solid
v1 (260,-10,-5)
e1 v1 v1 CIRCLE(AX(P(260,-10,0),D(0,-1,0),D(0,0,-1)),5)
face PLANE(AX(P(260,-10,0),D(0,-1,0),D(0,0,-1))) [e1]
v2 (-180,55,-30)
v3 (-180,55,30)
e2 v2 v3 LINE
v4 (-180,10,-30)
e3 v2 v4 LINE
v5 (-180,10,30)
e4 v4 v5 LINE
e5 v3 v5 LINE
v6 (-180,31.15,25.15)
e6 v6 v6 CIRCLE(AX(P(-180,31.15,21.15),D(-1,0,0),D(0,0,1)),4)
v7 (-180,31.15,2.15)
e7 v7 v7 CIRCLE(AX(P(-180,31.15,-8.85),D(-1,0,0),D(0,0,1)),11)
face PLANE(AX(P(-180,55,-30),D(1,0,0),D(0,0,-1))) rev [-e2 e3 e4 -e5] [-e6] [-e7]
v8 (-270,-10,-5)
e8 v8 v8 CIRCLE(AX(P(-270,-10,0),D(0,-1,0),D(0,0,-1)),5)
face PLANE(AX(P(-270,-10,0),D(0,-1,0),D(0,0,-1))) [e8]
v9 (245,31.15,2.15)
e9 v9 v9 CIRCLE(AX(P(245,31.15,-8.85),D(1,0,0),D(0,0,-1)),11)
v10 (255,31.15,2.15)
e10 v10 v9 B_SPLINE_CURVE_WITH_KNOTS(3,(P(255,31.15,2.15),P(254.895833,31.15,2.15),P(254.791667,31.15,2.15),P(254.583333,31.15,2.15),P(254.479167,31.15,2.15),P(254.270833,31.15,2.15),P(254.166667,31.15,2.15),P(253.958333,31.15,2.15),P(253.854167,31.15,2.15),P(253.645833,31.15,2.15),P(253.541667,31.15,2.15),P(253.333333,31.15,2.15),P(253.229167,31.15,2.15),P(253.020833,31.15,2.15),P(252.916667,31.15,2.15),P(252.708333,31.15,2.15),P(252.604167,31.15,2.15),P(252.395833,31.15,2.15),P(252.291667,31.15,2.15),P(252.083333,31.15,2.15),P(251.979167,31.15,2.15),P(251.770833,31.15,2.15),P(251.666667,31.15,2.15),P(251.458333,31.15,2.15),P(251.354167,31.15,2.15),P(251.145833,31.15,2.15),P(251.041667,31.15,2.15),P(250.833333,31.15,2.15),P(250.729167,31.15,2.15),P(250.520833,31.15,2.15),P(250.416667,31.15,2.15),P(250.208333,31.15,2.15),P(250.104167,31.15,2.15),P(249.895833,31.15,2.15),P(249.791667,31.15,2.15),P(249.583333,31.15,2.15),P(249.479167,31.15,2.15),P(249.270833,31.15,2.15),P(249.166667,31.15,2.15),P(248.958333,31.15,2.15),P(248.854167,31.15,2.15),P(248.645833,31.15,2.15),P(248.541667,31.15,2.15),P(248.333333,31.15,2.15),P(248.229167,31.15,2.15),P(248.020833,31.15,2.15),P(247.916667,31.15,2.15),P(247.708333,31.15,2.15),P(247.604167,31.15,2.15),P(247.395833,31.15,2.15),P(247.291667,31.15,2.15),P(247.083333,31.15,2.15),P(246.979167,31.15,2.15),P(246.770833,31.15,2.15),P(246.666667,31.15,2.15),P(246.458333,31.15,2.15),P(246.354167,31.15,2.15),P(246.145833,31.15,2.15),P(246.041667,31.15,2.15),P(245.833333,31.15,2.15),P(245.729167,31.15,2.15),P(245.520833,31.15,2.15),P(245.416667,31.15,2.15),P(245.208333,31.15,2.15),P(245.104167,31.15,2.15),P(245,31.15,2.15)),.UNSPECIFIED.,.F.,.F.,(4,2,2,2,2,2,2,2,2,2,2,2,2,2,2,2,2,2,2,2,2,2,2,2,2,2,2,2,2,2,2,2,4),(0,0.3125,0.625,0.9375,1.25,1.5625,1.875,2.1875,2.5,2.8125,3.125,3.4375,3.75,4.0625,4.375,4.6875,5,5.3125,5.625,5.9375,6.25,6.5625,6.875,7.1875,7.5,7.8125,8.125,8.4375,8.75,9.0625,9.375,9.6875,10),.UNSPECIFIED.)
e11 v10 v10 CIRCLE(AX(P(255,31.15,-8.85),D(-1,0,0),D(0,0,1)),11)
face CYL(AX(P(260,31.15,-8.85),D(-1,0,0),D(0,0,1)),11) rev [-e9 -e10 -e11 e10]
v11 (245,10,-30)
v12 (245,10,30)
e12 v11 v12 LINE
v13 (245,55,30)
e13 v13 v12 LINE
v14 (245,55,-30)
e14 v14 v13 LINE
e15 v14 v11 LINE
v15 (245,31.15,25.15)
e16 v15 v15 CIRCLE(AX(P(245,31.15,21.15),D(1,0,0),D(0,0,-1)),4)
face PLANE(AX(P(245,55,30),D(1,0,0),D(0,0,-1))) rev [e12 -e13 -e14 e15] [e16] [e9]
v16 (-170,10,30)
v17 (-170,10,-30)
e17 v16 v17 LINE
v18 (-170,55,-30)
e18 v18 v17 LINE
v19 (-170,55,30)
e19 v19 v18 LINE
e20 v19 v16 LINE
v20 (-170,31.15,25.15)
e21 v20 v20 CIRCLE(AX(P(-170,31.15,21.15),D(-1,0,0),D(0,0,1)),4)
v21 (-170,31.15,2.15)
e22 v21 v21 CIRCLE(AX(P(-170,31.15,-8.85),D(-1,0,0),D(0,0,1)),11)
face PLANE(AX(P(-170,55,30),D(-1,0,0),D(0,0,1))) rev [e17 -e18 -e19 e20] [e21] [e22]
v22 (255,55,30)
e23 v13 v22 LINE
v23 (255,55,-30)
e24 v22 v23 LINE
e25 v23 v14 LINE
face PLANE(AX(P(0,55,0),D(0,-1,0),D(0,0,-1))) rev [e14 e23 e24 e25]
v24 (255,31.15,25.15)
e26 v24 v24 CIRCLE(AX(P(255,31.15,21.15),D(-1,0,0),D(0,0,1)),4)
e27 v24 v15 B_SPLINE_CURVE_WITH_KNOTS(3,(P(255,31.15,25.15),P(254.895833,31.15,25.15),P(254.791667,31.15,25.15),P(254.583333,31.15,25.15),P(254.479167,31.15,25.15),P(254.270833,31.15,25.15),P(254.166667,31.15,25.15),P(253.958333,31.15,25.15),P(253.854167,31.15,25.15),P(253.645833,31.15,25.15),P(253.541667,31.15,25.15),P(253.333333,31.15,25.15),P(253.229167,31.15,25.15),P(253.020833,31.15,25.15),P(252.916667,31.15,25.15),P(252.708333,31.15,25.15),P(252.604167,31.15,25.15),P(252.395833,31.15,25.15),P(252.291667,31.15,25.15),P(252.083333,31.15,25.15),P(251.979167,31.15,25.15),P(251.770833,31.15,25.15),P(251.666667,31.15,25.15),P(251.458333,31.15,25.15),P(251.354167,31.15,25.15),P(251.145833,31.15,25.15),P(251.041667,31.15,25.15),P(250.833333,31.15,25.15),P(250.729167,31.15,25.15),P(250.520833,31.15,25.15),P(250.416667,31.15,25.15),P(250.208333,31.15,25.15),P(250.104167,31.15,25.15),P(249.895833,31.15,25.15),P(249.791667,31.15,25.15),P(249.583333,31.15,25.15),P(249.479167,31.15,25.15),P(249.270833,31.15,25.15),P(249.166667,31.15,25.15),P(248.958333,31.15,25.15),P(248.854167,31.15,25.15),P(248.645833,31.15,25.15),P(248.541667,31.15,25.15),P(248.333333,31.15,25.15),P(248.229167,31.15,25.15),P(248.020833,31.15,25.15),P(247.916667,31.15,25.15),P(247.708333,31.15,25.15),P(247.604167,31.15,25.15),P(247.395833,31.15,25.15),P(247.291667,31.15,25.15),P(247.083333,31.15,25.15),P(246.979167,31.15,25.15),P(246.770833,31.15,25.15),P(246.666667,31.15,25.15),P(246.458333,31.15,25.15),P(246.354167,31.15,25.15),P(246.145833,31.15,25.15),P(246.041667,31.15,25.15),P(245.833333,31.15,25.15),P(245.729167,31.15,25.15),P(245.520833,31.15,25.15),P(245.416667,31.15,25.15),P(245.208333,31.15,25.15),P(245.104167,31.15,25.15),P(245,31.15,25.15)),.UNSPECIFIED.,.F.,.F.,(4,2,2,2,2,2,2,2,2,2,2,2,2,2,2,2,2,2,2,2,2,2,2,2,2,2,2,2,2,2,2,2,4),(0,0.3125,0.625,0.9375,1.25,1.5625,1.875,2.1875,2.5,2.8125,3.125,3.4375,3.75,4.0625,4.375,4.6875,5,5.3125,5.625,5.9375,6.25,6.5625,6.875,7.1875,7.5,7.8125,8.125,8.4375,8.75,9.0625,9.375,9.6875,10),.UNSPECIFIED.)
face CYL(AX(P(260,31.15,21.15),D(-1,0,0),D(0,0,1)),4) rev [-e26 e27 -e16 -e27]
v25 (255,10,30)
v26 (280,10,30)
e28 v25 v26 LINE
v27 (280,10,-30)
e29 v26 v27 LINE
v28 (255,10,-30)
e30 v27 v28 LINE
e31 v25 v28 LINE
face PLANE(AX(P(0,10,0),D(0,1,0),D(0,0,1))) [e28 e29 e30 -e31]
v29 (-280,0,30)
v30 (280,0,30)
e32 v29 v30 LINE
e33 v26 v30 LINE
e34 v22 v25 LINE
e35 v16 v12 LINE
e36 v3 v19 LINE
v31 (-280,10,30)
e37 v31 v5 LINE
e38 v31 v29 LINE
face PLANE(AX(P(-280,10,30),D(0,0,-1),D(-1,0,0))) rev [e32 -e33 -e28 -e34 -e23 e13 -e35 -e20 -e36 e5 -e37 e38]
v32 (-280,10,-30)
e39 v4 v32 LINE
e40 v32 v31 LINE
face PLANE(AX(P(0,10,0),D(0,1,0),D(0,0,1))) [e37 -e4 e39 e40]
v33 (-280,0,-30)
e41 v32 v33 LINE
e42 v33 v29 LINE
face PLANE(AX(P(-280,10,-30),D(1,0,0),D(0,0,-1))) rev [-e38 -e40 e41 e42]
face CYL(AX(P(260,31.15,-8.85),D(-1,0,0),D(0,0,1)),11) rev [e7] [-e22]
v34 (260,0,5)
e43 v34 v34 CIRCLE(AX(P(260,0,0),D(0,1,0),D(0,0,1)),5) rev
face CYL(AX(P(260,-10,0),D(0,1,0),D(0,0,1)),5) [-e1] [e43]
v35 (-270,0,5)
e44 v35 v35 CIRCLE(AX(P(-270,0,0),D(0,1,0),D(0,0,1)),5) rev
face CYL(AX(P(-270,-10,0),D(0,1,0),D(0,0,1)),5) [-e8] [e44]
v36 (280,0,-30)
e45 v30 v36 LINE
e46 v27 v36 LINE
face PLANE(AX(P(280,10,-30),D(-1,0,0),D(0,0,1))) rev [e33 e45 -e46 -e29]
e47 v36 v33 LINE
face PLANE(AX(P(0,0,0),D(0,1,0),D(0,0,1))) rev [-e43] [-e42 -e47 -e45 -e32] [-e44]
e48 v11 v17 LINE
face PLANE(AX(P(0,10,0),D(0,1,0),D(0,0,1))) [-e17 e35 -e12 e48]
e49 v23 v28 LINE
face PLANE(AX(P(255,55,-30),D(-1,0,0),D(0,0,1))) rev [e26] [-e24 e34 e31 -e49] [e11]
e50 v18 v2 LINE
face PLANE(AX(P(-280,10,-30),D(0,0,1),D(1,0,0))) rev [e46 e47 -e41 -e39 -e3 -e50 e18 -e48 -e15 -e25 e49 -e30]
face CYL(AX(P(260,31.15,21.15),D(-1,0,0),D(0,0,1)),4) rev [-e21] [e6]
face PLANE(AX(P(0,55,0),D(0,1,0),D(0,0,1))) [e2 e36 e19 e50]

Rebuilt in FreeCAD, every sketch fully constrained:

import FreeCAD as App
import Part
import Sketcher

V = App.Vector
Q = App.Units.Quantity

doc = App.newDocument("Part")
params = doc.addObject("Spreadsheet::Sheet", "Params")
for row, (alias, value) in enumerate([
    ("sketch1_width", "560 mm"),
    ("sketch1_height", "60 mm"),
    ("pad1_length", "10 mm"),
    ("sketch2_width", "10 mm"),
    ("sketch2_height", "60 mm"),
    ("pad2_length", "45 mm"),
    ("sketch3_diameter", "22 mm"),
    ("sketch3_diameter2", "8 mm"),
    ("pocket1_length", "440 mm"),
    ("sketch4_diameter", "10 mm"),
    ("pad3_length", "10 mm"),
], start=1):
    params.set(f"A{row}", alias)
    params.set(f"B{row}", "=" + value)
    params.setAlias(f"B{row}", alias)

body = doc.addObject("PartDesign::Body", "Body")

sketch1 = body.newObject("Sketcher::SketchObject", "Sketch")
sketch1.AttachmentSupport = (doc.getObject("XZ_Plane"), [""])
sketch1.MapMode = "FlatFace"
sketch1.addGeometry(Part.LineSegment(V(-280, -30, 0), V(-280, 30, 0)), False)
sketch1.addGeometry(Part.LineSegment(V(-280, 30, 0), V(280, 30, 0)), False)
sketch1.addGeometry(Part.LineSegment(V(280, 30, 0), V(280, -30, 0)), False)
sketch1.addGeometry(Part.LineSegment(V(280, -30, 0), V(-280, -30, 0)), False)
sketch1.addConstraint(Sketcher.Constraint("Coincident", 0, 2, 1, 1))
sketch1.addConstraint(Sketcher.Constraint("Coincident", 1, 2, 2, 1))
sketch1.addConstraint(Sketcher.Constraint("Coincident", 2, 2, 3, 1))
sketch1.addConstraint(Sketcher.Constraint("Coincident", 3, 2, 0, 1))
sketch1.addConstraint(Sketcher.Constraint("Vertical", 0))
sketch1.addConstraint(Sketcher.Constraint("Horizontal", 1))
sketch1.addConstraint(Sketcher.Constraint("Vertical", 2))
sketch1.addConstraint(Sketcher.Constraint("Horizontal", 3))
sketch1.addConstraint(Sketcher.Constraint("Symmetric", 0, 2, 2, 2, -1, 1))
sketch1.addConstraint(Sketcher.Constraint("DistanceX", 1, 1, 1, 2, Q("560 mm")))
sketch1.addConstraint(Sketcher.Constraint("DistanceY", 0, 1, 0, 2, Q("60 mm")))
sketch1.setExpression("Constraints[9]", "Params.sketch1_width")
sketch1.setExpression("Constraints[10]", "Params.sketch1_height")
pad1 = body.newObject("PartDesign::Pad", "Pad")
pad1.Profile = sketch1
pad1.setExpression("Length", "Params.pad1_length")
pad1.Reversed = True

sketch2 = body.newObject("Sketcher::SketchObject", "Sketch001")
sketch2.AttachmentSupport = (doc.getObject("XZ_Plane"), [""])
sketch2.MapMode = "FlatFace"
sketch2.AttachmentOffset = App.Placement(V(0, 0, -10), App.Rotation())
sketch2.addGeometry(Part.LineSegment(V(-180, -30, 0), V(-180, 30, 0)), False)
sketch2.addGeometry(Part.LineSegment(V(-180, 30, 0), V(-170, 30, 0)), False)
sketch2.addGeometry(Part.LineSegment(V(-170, 30, 0), V(-170, -30, 0)), False)
sketch2.addGeometry(Part.LineSegment(V(-170, -30, 0), V(-180, -30, 0)), False)
sketch2.addGeometry(Part.LineSegment(V(245, -30, 0), V(245, 30, 0)), False)
sketch2.addGeometry(Part.LineSegment(V(245, 30, 0), V(255, 30, 0)), False)
sketch2.addGeometry(Part.LineSegment(V(255, 30, 0), V(255, -30, 0)), False)
sketch2.addGeometry(Part.LineSegment(V(255, -30, 0), V(245, -30, 0)), False)
sketch2.addConstraint(Sketcher.Constraint("Coincident", 0, 2, 1, 1))
sketch2.addConstraint(Sketcher.Constraint("Coincident", 1, 2, 2, 1))
sketch2.addConstraint(Sketcher.Constraint("Coincident", 2, 2, 3, 1))
sketch2.addConstraint(Sketcher.Constraint("Coincident", 3, 2, 0, 1))
sketch2.addConstraint(Sketcher.Constraint("Coincident", 4, 2, 5, 1))
sketch2.addConstraint(Sketcher.Constraint("Coincident", 5, 2, 6, 1))
sketch2.addConstraint(Sketcher.Constraint("Coincident", 6, 2, 7, 1))
sketch2.addConstraint(Sketcher.Constraint("Coincident", 7, 2, 4, 1))
sketch2.addConstraint(Sketcher.Constraint("Vertical", 0))
sketch2.addConstraint(Sketcher.Constraint("Horizontal", 1))
sketch2.addConstraint(Sketcher.Constraint("Vertical", 2))
sketch2.addConstraint(Sketcher.Constraint("Horizontal", 3))
sketch2.addConstraint(Sketcher.Constraint("Vertical", 4))
sketch2.addConstraint(Sketcher.Constraint("Horizontal", 5))
sketch2.addConstraint(Sketcher.Constraint("Vertical", 6))
sketch2.addConstraint(Sketcher.Constraint("Horizontal", 7))
sketch2.addConstraint(Sketcher.Constraint("Horizontal", 1, 2, 4, 2))
sketch2.addConstraint(Sketcher.Constraint("Horizontal", 3, 2, 6, 2))
sketch2.addConstraint(Sketcher.Constraint("Equal", 3, 5))
sketch2.addConstraint(Sketcher.Constraint("DistanceX", 1, 1, 1, 2, Q("10 mm")))
sketch2.addConstraint(Sketcher.Constraint("DistanceY", 0, 1, 0, 2, Q("60 mm")))
sketch2.addConstraint(Sketcher.Constraint("DistanceX", 0, 2, -1, 1, Q("180 mm")))
sketch2.addConstraint(Sketcher.Constraint("DistanceY", -1, 1, 0, 2, Q("30 mm")))
sketch2.addConstraint(Sketcher.Constraint("DistanceX", -1, 1, 4, 2, Q("245 mm")))
sketch2.setExpression("Constraints[19]", "Params.sketch2_width")
sketch2.setExpression("Constraints[20]", "Params.sketch2_height")
pad2 = body.newObject("PartDesign::Pad", "Pad001")
pad2.Profile = sketch2
pad2.setExpression("Length", "Params.pad2_length")
pad2.Reversed = True

sketch3 = body.newObject("Sketcher::SketchObject", "Sketch002")
sketch3.AttachmentSupport = (doc.getObject("YZ_Plane"), [""])
sketch3.MapMode = "FlatFace"
sketch3.AttachmentOffset = App.Placement(V(0, 0, -180), App.Rotation())
sketch3.addGeometry(Part.Circle(V(31.1, -8.8, 0), V(0, 0, 1), 11), False)
sketch3.addGeometry(Part.Circle(V(31.1, 21.1, 0), V(0, 0, 1), 4), False)
sketch3.addConstraint(Sketcher.Constraint("Vertical", 0, 3, 1, 3))
sketch3.addConstraint(Sketcher.Constraint("Diameter", 0, Q("22 mm")))
sketch3.addConstraint(Sketcher.Constraint("Diameter", 1, Q("8 mm")))
sketch3.addConstraint(Sketcher.Constraint("DistanceY", 0, 3, 1, 3, Q("30 mm")))
sketch3.addConstraint(Sketcher.Constraint("DistanceX", -1, 1, 0, 3, Q("31.15 mm")))
sketch3.addConstraint(Sketcher.Constraint("DistanceY", 0, 3, -1, 1, Q("8.85 mm")))
sketch3.setExpression("Constraints[1]", "Params.sketch3_diameter")
sketch3.setExpression("Constraints[2]", "Params.sketch3_diameter2")
pocket1 = body.newObject("PartDesign::Pocket", "Pocket")
pocket1.Profile = sketch3
pocket1.setExpression("Length", "Params.pocket1_length")
pocket1.Reversed = True

sketch4 = body.newObject("Sketcher::SketchObject", "Sketch003")
sketch4.AttachmentSupport = (doc.getObject("XZ_Plane"), [""])
sketch4.MapMode = "FlatFace"
sketch4.addGeometry(Part.Circle(V(-270, 0, 0), V(0, 0, 1), 5), False)
sketch4.addGeometry(Part.Circle(V(260, 0, 0), V(0, 0, 1), 5), False)
sketch4.addConstraint(Sketcher.Constraint("Equal", 0, 1))
sketch4.addConstraint(Sketcher.Constraint("PointOnObject", 0, 3, -1))
sketch4.addConstraint(Sketcher.Constraint("PointOnObject", 1, 3, -1))
sketch4.addConstraint(Sketcher.Constraint("Diameter", 0, Q("10 mm")))
sketch4.addConstraint(Sketcher.Constraint("DistanceX", 0, 3, -1, 1, Q("270 mm")))
sketch4.addConstraint(Sketcher.Constraint("DistanceX", -1, 1, 1, 3, Q("260 mm")))
sketch4.setExpression("Constraints[3]", "Params.sketch4_diameter")
pad3 = body.newObject("PartDesign::Pad", "Pad002")
pad3.Profile = sketch4
pad3.setExpression("Length", "Params.pad3_length")

doc.recompute()
